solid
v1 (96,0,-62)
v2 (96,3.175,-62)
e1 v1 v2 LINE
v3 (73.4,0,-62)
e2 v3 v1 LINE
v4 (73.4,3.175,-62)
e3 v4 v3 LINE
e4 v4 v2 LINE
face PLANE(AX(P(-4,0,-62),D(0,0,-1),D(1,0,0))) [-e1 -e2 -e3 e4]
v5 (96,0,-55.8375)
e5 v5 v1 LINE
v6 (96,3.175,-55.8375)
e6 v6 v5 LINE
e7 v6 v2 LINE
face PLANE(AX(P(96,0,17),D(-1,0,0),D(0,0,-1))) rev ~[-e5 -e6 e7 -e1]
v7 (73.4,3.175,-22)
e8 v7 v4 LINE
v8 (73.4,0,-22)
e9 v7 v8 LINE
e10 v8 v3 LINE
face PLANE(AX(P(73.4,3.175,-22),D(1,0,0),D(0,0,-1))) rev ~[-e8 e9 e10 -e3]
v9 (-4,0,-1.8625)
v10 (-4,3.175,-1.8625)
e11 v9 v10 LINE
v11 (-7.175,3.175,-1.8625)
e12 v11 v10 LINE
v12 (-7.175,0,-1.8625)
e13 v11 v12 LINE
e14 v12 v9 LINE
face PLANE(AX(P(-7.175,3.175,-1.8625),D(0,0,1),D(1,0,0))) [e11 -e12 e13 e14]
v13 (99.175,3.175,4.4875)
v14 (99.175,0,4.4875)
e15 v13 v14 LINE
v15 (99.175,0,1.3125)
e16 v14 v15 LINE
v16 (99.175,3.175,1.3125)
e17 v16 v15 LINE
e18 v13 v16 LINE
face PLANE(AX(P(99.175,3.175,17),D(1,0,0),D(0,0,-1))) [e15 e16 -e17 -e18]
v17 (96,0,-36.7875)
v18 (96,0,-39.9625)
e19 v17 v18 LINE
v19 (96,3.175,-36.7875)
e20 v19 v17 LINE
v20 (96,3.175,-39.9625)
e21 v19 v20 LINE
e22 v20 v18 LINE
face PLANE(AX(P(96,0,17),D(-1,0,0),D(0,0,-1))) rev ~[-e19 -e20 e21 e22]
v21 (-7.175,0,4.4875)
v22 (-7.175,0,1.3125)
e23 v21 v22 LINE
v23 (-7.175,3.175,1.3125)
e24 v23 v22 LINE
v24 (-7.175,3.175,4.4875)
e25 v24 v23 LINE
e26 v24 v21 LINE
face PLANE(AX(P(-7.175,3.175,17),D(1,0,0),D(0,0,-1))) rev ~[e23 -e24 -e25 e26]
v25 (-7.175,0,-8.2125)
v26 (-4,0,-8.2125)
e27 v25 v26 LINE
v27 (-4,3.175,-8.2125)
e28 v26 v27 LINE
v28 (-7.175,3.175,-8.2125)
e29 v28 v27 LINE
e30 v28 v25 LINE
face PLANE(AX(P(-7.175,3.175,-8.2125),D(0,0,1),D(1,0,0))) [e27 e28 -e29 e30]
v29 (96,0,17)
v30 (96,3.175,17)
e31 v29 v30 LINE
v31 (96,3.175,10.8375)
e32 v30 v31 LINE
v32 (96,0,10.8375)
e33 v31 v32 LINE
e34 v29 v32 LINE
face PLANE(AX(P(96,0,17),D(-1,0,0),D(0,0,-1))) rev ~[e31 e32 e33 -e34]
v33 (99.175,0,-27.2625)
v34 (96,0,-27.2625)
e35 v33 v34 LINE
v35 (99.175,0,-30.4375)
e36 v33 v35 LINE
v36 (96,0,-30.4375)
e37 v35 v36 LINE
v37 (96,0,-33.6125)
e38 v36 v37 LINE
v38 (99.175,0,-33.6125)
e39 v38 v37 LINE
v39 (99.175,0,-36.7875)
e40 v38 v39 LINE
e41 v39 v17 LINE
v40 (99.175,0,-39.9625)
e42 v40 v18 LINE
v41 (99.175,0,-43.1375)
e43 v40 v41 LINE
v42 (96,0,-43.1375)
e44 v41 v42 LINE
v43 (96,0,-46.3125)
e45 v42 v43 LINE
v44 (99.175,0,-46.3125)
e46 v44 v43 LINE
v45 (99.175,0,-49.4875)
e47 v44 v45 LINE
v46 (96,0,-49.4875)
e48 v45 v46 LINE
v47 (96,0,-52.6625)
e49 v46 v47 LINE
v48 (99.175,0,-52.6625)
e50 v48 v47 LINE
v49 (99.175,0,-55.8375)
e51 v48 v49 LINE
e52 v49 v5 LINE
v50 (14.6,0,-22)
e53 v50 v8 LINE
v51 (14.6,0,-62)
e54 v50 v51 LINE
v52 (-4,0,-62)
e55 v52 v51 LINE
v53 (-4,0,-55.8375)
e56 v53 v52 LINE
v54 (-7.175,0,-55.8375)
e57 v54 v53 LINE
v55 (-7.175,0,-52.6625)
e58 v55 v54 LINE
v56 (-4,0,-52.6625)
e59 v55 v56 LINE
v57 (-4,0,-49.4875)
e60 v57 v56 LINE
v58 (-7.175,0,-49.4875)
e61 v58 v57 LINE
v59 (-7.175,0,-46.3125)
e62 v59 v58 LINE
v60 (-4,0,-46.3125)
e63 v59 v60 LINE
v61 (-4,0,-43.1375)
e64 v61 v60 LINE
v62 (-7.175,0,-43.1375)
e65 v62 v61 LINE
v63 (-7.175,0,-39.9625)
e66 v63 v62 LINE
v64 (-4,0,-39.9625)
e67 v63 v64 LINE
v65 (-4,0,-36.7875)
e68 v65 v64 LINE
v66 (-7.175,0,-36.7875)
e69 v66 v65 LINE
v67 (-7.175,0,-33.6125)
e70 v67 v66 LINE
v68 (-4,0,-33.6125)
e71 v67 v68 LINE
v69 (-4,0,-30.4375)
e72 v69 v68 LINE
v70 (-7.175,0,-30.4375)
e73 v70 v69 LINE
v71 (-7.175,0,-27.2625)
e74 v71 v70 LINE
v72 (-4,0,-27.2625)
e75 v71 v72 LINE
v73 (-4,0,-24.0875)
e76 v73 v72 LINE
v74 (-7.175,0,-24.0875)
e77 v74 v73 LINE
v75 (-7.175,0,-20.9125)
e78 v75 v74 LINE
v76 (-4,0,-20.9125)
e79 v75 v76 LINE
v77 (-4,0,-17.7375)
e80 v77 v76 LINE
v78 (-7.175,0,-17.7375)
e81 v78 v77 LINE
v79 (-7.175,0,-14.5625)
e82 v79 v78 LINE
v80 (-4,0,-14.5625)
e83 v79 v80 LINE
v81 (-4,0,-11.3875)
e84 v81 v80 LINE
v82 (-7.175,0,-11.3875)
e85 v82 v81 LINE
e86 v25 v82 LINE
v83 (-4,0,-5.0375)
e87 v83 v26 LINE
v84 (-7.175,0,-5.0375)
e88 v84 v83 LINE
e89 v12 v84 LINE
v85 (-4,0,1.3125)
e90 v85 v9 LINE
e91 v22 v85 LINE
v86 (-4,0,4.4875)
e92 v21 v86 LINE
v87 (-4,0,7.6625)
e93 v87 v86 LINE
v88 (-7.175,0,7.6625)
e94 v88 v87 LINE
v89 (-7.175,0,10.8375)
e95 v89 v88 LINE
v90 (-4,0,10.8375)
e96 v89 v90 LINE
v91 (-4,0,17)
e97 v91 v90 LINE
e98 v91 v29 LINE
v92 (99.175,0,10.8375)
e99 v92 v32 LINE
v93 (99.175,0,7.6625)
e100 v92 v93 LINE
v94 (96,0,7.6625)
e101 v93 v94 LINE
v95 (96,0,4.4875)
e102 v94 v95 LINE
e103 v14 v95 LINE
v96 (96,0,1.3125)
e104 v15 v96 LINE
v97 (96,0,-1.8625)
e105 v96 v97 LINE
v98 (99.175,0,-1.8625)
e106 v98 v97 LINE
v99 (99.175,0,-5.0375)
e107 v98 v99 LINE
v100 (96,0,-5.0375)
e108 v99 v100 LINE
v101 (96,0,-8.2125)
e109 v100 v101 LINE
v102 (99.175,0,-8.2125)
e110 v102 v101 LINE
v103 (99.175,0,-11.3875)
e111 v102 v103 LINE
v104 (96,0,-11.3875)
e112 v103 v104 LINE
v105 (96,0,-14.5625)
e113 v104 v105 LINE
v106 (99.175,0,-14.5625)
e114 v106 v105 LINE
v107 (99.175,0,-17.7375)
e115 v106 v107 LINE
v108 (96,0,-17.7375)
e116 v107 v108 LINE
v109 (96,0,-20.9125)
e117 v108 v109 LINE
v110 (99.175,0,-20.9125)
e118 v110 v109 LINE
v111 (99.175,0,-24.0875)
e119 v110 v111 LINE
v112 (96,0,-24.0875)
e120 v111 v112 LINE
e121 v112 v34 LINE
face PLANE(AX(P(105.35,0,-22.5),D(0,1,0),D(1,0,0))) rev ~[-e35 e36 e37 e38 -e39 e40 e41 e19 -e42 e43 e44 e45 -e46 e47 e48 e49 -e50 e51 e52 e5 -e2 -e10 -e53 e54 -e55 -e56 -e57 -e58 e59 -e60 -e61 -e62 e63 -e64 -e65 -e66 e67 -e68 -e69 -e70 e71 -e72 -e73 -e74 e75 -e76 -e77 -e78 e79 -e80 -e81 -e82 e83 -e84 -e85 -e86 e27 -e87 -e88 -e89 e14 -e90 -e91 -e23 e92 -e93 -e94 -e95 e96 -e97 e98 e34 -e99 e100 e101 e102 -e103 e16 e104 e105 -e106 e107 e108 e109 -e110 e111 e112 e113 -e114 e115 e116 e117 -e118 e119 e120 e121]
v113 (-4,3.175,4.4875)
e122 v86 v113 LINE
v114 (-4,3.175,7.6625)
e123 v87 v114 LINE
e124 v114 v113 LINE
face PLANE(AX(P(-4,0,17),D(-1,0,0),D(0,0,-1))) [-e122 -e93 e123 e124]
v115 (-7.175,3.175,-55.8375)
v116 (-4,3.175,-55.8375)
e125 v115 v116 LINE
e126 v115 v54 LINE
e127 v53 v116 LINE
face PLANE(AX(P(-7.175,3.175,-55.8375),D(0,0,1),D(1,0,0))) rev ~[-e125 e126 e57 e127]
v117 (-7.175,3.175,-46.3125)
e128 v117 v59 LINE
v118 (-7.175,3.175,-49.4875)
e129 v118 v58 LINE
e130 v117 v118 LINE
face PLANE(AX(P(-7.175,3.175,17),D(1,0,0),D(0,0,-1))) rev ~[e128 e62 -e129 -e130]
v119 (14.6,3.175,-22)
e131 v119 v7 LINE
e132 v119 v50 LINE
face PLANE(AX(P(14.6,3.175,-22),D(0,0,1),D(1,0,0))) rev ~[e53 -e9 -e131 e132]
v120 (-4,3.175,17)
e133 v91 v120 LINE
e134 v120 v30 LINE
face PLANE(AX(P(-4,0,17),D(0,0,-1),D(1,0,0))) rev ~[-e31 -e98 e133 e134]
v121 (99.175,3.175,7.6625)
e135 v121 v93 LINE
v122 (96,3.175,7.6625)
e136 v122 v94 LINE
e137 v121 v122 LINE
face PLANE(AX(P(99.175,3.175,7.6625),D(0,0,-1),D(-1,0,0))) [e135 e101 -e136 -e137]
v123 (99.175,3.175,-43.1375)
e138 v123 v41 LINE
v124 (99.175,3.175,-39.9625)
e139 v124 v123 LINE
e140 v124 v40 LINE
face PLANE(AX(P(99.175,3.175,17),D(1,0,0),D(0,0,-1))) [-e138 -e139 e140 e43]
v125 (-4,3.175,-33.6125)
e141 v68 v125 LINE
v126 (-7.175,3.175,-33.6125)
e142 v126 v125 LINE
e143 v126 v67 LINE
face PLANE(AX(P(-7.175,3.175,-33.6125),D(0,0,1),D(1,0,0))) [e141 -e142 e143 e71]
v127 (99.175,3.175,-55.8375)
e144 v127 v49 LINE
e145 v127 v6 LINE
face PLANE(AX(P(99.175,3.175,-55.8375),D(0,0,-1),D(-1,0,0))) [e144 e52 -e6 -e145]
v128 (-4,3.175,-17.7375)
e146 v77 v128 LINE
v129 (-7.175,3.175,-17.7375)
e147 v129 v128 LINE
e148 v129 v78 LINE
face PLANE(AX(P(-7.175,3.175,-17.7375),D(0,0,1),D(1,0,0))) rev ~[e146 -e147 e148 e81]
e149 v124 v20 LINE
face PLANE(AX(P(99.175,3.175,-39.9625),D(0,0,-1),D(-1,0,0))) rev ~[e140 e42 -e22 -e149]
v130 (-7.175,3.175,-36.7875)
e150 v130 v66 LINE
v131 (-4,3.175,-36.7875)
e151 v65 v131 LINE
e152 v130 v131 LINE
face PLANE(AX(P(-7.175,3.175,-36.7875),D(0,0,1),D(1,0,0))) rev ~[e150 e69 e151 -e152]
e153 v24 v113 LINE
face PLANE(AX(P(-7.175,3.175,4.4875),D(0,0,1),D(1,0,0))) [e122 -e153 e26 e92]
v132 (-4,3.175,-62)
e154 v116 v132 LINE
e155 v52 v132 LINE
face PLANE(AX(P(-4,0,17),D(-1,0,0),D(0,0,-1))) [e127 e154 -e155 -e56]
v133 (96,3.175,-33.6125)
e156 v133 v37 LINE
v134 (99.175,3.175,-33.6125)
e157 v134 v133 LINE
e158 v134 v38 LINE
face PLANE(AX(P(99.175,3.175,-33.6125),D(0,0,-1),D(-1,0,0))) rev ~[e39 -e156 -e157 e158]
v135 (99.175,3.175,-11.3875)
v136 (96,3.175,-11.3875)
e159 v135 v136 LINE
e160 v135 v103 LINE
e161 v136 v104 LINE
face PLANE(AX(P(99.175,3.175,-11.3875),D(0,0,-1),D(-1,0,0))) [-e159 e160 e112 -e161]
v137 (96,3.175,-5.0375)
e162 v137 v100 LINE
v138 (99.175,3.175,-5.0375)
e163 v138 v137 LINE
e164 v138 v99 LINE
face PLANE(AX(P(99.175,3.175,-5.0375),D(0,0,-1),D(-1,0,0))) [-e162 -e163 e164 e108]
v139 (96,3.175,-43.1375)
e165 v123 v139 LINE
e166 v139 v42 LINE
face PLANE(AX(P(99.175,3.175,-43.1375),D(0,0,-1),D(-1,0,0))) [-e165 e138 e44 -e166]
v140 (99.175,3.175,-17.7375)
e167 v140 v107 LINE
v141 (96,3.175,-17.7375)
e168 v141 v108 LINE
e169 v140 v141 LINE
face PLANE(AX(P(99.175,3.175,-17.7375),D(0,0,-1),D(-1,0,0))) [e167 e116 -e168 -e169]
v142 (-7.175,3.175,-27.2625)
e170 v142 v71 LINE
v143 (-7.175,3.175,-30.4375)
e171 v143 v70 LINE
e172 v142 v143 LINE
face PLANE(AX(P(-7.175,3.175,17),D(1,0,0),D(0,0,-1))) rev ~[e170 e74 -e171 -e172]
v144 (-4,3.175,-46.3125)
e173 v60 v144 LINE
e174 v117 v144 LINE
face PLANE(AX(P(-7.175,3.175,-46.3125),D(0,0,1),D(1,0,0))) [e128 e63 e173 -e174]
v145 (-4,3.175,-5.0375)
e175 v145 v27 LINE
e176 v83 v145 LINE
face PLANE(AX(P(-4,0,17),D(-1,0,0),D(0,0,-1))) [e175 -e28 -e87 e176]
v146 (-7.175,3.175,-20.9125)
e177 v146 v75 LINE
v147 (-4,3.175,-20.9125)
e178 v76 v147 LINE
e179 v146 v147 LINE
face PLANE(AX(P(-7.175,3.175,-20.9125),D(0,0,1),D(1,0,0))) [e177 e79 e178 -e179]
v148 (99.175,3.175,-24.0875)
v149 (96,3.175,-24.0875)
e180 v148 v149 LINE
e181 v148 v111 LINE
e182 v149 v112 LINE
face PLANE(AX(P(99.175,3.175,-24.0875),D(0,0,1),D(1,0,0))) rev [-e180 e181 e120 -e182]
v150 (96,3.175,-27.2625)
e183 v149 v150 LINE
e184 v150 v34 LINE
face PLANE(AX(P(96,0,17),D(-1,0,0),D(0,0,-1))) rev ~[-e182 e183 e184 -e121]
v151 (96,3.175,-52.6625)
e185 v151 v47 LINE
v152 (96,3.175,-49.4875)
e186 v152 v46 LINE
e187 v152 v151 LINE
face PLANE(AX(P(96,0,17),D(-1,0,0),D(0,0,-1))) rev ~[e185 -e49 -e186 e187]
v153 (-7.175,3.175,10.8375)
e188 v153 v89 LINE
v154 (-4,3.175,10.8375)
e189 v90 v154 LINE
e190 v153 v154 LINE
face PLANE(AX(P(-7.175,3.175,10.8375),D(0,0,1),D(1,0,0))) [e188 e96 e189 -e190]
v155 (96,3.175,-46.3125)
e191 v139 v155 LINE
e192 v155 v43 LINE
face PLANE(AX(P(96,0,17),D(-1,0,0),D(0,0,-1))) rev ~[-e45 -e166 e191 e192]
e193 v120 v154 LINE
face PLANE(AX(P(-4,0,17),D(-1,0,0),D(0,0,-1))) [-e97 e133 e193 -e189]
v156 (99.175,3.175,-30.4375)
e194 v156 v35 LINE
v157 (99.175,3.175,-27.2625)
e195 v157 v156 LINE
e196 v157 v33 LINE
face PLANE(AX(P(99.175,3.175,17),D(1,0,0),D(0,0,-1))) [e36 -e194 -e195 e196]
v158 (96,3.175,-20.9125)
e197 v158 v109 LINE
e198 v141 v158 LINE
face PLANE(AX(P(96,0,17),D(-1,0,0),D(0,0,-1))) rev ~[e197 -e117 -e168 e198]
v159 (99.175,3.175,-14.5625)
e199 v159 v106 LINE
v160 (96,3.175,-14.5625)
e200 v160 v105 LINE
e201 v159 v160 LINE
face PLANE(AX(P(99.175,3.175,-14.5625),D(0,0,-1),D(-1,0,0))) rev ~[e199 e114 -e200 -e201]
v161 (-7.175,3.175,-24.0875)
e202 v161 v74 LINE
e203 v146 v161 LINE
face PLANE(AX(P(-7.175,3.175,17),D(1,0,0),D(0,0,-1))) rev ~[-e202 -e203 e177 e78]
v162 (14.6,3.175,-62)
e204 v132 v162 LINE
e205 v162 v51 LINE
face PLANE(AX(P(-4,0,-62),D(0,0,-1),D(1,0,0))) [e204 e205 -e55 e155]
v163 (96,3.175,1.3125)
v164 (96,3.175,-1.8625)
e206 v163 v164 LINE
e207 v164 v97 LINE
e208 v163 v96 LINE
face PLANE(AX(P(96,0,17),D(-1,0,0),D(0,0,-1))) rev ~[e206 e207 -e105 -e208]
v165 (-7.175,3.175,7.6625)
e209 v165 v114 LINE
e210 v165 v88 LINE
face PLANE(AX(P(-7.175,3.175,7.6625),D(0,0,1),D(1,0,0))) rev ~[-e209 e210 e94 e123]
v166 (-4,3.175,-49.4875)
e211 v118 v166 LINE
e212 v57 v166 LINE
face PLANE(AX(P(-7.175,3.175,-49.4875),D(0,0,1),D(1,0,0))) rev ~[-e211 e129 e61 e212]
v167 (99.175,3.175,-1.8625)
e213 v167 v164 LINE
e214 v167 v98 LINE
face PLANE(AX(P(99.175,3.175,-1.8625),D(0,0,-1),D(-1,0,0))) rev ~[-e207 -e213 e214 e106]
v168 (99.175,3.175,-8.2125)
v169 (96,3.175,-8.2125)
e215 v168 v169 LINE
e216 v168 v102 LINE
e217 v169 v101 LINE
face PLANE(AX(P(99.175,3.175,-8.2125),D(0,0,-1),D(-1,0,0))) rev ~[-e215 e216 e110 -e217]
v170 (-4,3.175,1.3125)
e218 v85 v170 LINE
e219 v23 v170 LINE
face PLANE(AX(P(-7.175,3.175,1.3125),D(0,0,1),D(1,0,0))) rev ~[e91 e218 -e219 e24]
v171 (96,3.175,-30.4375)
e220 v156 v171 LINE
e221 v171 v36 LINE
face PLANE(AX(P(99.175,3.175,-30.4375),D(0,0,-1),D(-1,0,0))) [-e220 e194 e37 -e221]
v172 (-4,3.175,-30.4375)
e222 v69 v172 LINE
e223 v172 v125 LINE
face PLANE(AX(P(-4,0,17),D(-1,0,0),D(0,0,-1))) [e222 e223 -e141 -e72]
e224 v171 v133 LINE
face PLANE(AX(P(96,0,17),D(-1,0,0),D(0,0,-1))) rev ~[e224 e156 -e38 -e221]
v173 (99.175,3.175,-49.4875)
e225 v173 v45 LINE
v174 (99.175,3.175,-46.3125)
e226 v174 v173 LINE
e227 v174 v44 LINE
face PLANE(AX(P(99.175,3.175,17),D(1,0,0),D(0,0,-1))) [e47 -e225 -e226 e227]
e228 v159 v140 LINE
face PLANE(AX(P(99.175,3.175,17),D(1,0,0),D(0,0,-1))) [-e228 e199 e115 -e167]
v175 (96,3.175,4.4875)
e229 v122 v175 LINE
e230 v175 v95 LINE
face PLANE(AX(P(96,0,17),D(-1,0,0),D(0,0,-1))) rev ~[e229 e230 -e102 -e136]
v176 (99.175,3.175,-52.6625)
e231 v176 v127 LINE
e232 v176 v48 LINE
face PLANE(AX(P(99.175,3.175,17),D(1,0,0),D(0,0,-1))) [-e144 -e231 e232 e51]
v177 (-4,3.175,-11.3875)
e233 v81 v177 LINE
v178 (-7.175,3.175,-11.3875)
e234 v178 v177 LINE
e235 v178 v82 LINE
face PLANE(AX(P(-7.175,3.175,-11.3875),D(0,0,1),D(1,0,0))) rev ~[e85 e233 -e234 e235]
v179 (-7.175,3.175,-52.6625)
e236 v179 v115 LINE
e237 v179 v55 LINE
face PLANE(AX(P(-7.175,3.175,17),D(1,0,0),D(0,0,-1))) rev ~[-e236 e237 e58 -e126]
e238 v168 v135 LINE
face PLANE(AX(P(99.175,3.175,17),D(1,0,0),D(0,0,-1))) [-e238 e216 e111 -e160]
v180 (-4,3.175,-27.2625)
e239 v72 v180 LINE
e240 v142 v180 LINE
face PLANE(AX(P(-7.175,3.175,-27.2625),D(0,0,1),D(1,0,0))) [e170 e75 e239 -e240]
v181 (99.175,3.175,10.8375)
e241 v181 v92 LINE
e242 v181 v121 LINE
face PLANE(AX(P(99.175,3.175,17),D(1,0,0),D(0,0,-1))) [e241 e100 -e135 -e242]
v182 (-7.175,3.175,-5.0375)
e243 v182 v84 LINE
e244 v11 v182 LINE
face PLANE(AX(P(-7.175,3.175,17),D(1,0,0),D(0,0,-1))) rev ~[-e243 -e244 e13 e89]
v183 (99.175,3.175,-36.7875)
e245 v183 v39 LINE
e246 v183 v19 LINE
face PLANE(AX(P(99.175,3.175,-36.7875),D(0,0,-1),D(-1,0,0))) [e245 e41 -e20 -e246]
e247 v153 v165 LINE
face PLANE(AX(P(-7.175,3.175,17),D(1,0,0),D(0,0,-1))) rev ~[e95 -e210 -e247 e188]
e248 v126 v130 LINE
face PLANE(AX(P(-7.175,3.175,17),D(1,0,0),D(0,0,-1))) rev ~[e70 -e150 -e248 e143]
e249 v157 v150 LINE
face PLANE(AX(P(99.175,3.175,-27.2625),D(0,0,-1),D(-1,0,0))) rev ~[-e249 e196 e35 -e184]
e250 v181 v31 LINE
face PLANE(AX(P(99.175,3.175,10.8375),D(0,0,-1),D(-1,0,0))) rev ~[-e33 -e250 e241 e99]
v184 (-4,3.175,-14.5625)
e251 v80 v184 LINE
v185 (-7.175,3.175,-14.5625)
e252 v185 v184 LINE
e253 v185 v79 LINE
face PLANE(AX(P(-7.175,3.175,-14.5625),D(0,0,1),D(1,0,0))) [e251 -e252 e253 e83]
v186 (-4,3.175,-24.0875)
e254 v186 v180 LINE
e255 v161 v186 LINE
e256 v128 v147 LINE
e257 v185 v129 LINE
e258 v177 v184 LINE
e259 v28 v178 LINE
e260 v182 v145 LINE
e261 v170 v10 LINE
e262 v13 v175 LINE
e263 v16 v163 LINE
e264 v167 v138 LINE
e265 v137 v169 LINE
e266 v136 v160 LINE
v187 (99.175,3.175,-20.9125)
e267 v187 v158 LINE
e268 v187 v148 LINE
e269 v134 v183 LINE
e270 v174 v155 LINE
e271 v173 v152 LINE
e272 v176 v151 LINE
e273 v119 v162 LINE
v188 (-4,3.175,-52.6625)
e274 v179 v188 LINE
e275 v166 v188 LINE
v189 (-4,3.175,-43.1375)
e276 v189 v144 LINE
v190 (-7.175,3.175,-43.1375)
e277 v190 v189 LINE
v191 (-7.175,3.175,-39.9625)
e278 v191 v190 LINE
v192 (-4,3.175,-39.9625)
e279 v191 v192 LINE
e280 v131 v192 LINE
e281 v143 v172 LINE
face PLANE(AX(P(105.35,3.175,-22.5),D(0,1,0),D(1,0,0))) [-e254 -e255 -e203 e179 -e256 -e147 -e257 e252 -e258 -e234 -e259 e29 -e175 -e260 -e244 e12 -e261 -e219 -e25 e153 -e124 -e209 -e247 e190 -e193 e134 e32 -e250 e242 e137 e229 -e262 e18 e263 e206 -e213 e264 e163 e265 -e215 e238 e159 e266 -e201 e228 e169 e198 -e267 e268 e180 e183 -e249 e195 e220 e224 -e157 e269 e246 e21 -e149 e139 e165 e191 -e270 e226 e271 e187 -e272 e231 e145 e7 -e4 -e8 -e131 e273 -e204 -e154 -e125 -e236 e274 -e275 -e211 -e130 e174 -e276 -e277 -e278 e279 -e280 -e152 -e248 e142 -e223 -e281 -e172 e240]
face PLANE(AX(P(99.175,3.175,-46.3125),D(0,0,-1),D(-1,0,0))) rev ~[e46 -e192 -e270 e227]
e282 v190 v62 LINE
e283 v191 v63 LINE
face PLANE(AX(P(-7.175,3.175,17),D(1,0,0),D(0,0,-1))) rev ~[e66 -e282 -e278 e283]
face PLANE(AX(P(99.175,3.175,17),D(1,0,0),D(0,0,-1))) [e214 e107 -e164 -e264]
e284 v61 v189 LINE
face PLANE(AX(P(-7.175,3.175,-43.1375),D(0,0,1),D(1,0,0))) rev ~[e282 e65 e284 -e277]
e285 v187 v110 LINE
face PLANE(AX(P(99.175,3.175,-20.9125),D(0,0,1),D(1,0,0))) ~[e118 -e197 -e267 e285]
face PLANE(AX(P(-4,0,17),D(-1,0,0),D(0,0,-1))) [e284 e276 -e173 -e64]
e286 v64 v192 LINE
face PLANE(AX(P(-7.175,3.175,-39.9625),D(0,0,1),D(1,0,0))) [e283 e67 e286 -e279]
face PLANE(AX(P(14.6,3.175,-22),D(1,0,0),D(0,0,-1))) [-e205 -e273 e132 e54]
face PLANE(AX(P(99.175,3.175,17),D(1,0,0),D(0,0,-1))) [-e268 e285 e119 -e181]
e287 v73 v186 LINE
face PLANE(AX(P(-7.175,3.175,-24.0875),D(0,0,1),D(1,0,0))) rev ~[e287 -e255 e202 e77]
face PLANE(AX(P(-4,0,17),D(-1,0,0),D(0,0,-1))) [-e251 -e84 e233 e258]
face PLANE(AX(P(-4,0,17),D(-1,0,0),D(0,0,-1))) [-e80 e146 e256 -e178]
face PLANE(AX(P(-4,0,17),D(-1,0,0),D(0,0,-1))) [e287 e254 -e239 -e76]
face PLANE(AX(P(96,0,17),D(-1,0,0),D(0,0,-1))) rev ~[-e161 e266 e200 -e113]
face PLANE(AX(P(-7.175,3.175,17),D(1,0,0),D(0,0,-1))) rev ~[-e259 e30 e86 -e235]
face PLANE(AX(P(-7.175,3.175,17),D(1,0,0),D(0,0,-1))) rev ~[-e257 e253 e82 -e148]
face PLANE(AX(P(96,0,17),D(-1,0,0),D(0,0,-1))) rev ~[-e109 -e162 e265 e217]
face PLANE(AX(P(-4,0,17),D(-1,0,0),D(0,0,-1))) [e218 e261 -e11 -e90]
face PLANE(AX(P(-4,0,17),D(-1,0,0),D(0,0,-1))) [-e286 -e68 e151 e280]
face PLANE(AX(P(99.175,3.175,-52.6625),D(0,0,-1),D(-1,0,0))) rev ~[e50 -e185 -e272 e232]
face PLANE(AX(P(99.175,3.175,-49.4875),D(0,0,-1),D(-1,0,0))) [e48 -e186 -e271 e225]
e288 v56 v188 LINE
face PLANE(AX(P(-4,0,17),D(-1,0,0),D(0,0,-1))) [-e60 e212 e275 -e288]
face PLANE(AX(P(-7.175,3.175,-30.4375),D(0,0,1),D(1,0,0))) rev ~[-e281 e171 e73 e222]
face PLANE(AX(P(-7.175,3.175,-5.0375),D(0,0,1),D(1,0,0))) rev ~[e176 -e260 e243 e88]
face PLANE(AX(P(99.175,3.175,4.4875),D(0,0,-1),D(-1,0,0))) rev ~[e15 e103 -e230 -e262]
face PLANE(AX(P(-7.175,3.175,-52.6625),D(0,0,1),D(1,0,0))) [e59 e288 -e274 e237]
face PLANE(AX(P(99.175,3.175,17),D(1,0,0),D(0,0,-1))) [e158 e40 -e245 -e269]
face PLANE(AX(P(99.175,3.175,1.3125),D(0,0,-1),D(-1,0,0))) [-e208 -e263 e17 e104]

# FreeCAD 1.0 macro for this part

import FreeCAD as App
import Part
import Sketcher

doc = App.newDocument("Part")
body = doc.addObject("PartDesign::Body", "Body")

sketch1 = body.newObject("Sketcher::SketchObject", "Sketch")
sketch1.AttachmentSupport = (doc.getObject("XZ_Plane"), [""])
sketch1.MapMode = "FlatFace"
sketch1.addGeometry(Part.LineSegment(App.Vector(-4, -62, 0), App.Vector(-4, 17, 0)), False)
sketch1.addGeometry(Part.LineSegment(App.Vector(-4, 17, 0), App.Vector(96, 17, 0)), False)
sketch1.addGeometry(Part.LineSegment(App.Vector(96, 17, 0), App.Vector(96, -62, 0)), False)
sketch1.addGeometry(Part.LineSegment(App.Vector(96, -62, 0), App.Vector(-4, -62, 0)), False)
sketch1.addConstraint(Sketcher.Constraint("Coincident", 0, 2, 1, 1))
sketch1.addConstraint(Sketcher.Constraint("Coincident", 1, 2, 2, 1))
sketch1.addConstraint(Sketcher.Constraint("Coincident", 2, 2, 3, 1))
sketch1.addConstraint(Sketcher.Constraint("Coincident", 3, 2, 0, 1))
sketch1.addConstraint(Sketcher.Constraint("Vertical", 0))
sketch1.addConstraint(Sketcher.Constraint("Horizontal", 1))
sketch1.addConstraint(Sketcher.Constraint("Vertical", 2))
sketch1.addConstraint(Sketcher.Constraint("Horizontal", 3))
sketch1.addConstraint(Sketcher.Constraint("DistanceX", 1, 1, 1, 2, 100.0))
sketch1.addConstraint(Sketcher.Constraint("DistanceY", 0, 1, 0, 2, 79.0))
sketch1.addConstraint(Sketcher.Constraint("DistanceX", 0, 2, -1, 1, 4.0))
sketch1.addConstraint(Sketcher.Constraint("DistanceY", -1, 1, 0, 2, 17.0))
pad1 = body.newObject("PartDesign::Pad", "Pad")
pad1.Profile = sketch1
pad1.Length = 3.175
pad1.Reversed = True

sketch2 = body.newObject("Sketcher::SketchObject", "Sketch001")
sketch2.AttachmentSupport = (doc.getObject("XZ_Plane"), [""])
sketch2.MapMode = "FlatFace"
sketch2.AttachmentOffset = App.Placement(App.Vector(0, 0, -3.175), App.Rotation())
sketch2.addGeometry(Part.LineSegment(App.Vector(15, -62, 0), App.Vector(15, -22, 0)), False)
sketch2.addGeometry(Part.LineSegment(App.Vector(15, -22, 0), App.Vector(73, -22, 0)), False)
sketch2.addGeometry(Part.LineSegment(App.Vector(73, -22, 0), App.Vector(73, -62, 0)), False)
sketch2.addGeometry(Part.LineSegment(App.Vector(73, -62, 0), App.Vector(15, -62, 0)), False)
sketch2.addConstraint(Sketcher.Constraint("Coincident", 0, 2, 1, 1))
sketch2.addConstraint(Sketcher.Constraint("Coincident", 1, 2, 2, 1))
sketch2.addConstraint(Sketcher.Constraint("Coincident", 2, 2, 3, 1))
sketch2.addConstraint(Sketcher.Constraint("Coincident", 3, 2, 0, 1))
sketch2.addConstraint(Sketcher.Constraint("Vertical", 0))
sketch2.addConstraint(Sketcher.Constraint("Horizontal", 1))
sketch2.addConstraint(Sketcher.Constraint("Vertical", 2))
sketch2.addConstraint(Sketcher.Constraint("Horizontal", 3))
sketch2.addConstraint(Sketcher.Constraint("DistanceY", 0, 1, 0, 2, 40.0))
sketch2.addConstraint(Sketcher.Constraint("DistanceX", 1, 1, 1, 2, 58.8))
sketch2.addConstraint(Sketcher.Constraint("DistanceY", 0, 2, -1, 1, 22.0))
sketch2.addConstraint(Sketcher.Constraint("DistanceX", -1, 1, 0, 2, 14.6))
pocket1 = body.newObject("PartDesign::Pocket", "Pocket")
pocket1.Profile = sketch2
pocket1.Length = 3.175
pocket1.Reversed = True

sketch3 = body.newObject("Sketcher::SketchObject", "Sketch002")
sketch3.AttachmentSupport = (doc.getObject("XZ_Plane"), [""])
sketch3.MapMode = "FlatFace"
sketch3.AttachmentOffset = App.Placement(App.Vector(0, 0, -3.175), App.Rotation())
sketch3.addGeometry(Part.LineSegment(App.Vector(-7.2, -24.1, 0), App.Vector(-7.2, -20.9, 0)), False)
sketch3.addGeometry(Part.LineSegment(App.Vector(-7.2, -20.9, 0), App.Vector(-0.8, -20.9, 0)), False)
sketch3.addGeometry(Part.LineSegment(App.Vector(-0.8, -20.9, 0), App.Vector(-0.8, -24.1, 0)), False)
sketch3.addGeometry(Part.LineSegment(App.Vector(-0.8, -24.1, 0), App.Vector(-7.2, -24.1, 0)), False)
sketch3.addConstraint(Sketcher.Constraint("Coincident", 0, 2, 1, 1))
sketch3.addConstraint(Sketcher.Constraint("Coincident", 1, 2, 2, 1))
sketch3.addConstraint(Sketcher.Constraint("Coincident", 2, 2, 3, 1))
sketch3.addConstraint(Sketcher.Constraint("Coincident", 3, 2, 0, 1))
sketch3.addConstraint(Sketcher.Constraint("Vertical", 0))
sketch3.addConstraint(Sketcher.Constraint("Horizontal", 1))
sketch3.addConstraint(Sketcher.Constraint("Vertical", 2))
sketch3.addConstraint(Sketcher.Constraint("Horizontal", 3))
sketch3.addConstraint(Sketcher.Constraint("DistanceX", 1, 1, 1, 2, 6.35))
sketch3.addConstraint(Sketcher.Constraint("DistanceY", 0, 1, 0, 2, 3.175))
sketch3.addConstraint(Sketcher.Constraint("DistanceX", 0, 2, -1, 1, 7.175))
sketch3.addConstraint(Sketcher.Constraint("DistanceY", 0, 2, -1, 1, 20.9125))
pad2 = body.newObject("PartDesign::Pad", "Pad001")
pad2.Profile = sketch3
pad2.Length = 3.175
doc.recompute()

datumplane = body.newObject("PartDesign::Plane", "DatumPlane")
datumplane.AttachmentSupport = (doc.getObject("YZ_Plane"), [""])
datumplane.MapMode = "FlatFace"
datumplane.AttachmentOffset = App.Placement(App.Vector(0, 0, 46), App.Rotation())
mirrored = body.newObject("PartDesign::Mirrored", "Mirrored")
mirrored.Originals = [pad2]
mirrored.MirrorPlane = (datumplane, [""])
body.Tip = mirrored
doc.recompute()

linearpattern = body.newObject("PartDesign::LinearPattern", "LinearPattern")
linearpattern.Originals = [pad2]
linearpattern.Direction = (doc.getObject("Z_Axis"), [""])
linearpattern.Mode = "offset"
linearpattern.Offset = 6.35
linearpattern.Occurrences = 6
linearpattern.Reversed = True
body.Tip = linearpattern

sketch4 = body.newObject("Sketcher::SketchObject", "Sketch003")
sketch4.AttachmentSupport = (doc.getObject("XZ_Plane"), [""])
sketch4.MapMode = "FlatFace"
sketch4.AttachmentOffset = App.Placement(App.Vector(0, 0, -3.175), App.Rotation())
sketch4.addGeometry(Part.LineSegment(App.Vector(99.2, -27.3, 0), App.Vector(99.2, -30.4, 0)), False)
sketch4.addGeometry(Part.LineSegment(App.Vector(99.2, -30.4, 0), App.Vector(92.8, -30.4, 0)), False)
sketch4.addGeometry(Part.LineSegment(App.Vector(92.8, -30.4, 0), App.Vector(92.8, -27.3, 0)), False)
sketch4.addGeometry(Part.LineSegment(App.Vector(92.8, -27.3, 0), App.Vector(99.2, -27.3, 0)), False)
sketch4.addConstraint(Sketcher.Constraint("Coincident", 0, 2, 1, 1))
sketch4.addConstraint(Sketcher.Constraint("Coincident", 1, 2, 2, 1))
sketch4.addConstraint(Sketcher.Constraint("Coincident", 2, 2, 3, 1))
sketch4.addConstraint(Sketcher.Constraint("Coincident", 3, 2, 0, 1))
sketch4.addConstraint(Sketcher.Constraint("Vertical", 0))
sketch4.addConstraint(Sketcher.Constraint("Horizontal", 1))
sketch4.addConstraint(Sketcher.Constraint("Vertical", 2))
sketch4.addConstraint(Sketcher.Constraint("Horizontal", 3))
sketch4.addConstraint(Sketcher.Constraint("DistanceX", 1, 2, 1, 1, 6.35))
sketch4.addConstraint(Sketcher.Constraint("DistanceY", 0, 2, 0, 1, 3.175))
sketch4.addConstraint(Sketcher.Constraint("DistanceX", -1, 1, 0, 2, 99.175))
sketch4.addConstraint(Sketcher.Constraint("DistanceY", 0, 2, -1, 1, 30.4375))
pad3 = body.newObject("PartDesign::Pad", "Pad002")
pad3.Profile = sketch4
pad3.Length = 3.175

sketch5 = body.newObject("Sketcher::SketchObject", "Sketch004")
sketch5.AttachmentSupport = (doc.getObject("XZ_Plane"), [""])
sketch5.MapMode = "FlatFace"
sketch5.AttachmentOffset = App.Placement(App.Vector(0, 0, -3.175), App.Rotation())
sketch5.addGeometry(Part.LineSegment(App.Vector(99.2, -33.6, 0), App.Vector(99.2, -36.8, 0)), False)
sketch5.addGeometry(Part.LineSegment(App.Vector(99.2, -36.8, 0), App.Vector(92.8, -36.8, 0)), False)
sketch5.addGeometry(Part.LineSegment(App.Vector(92.8, -36.8, 0), App.Vector(92.8, -33.6, 0)), False)
sketch5.addGeometry(Part.LineSegment(App.Vector(92.8, -33.6, 0), App.Vector(99.2, -33.6, 0)), False)
sketch5.addConstraint(Sketcher.Constraint("Coincident", 0, 2, 1, 1))
sketch5.addConstraint(Sketcher.Constraint("Coincident", 1, 2, 2, 1))
sketch5.addConstraint(Sketcher.Constraint("Coincident", 2, 2, 3, 1))
sketch5.addConstraint(Sketcher.Constraint("Coincident", 3, 2, 0, 1))
sketch5.addConstraint(Sketcher.Constraint("Vertical", 0))
sketch5.addConstraint(Sketcher.Constraint("Horizontal", 1))
sketch5.addConstraint(Sketcher.Constraint("Vertical", 2))
sketch5.addConstraint(Sketcher.Constraint("Horizontal", 3))
sketch5.addConstraint(Sketcher.Constraint("DistanceX", 1, 2, 1, 1, 6.35))
sketch5.addConstraint(Sketcher.Constraint("DistanceY", 0, 2, 0, 1, 3.175))
sketch5.addConstraint(Sketcher.Constraint("DistanceX", -1, 1, 0, 2, 99.175))
sketch5.addConstraint(Sketcher.Constraint("DistanceY", 0, 2, -1, 1, 36.7875))
pad4 = body.newObject("PartDesign::Pad", "Pad003")
pad4.Profile = sketch5
pad4.Length = 3.175

sketch6 = body.newObject("Sketcher::SketchObject", "Sketch005")
sketch6.AttachmentSupport = (doc.getObject("XZ_Plane"), [""])
sketch6.MapMode = "FlatFace"
sketch6.AttachmentOffset = App.Placement(App.Vector(0, 0, -3.175), App.Rotation())
sketch6.addGeometry(Part.LineSegment(App.Vector(99.2, -40, 0), App.Vector(99.2, -43.1, 0)), False)
sketch6.addGeometry(Part.LineSegment(App.Vector(99.2, -43.1, 0), App.Vector(92.8, -43.1, 0)), False)
sketch6.addGeometry(Part.LineSegment(App.Vector(92.8, -43.1, 0), App.Vector(92.8, -40, 0)), False)
sketch6.addGeometry(Part.LineSegment(App.Vector(92.8, -40, 0), App.Vector(99.2, -40, 0)), False)
sketch6.addConstraint(Sketcher.Constraint("Coincident", 0, 2, 1, 1))
sketch6.addConstraint(Sketcher.Constraint("Coincident", 1, 2, 2, 1))
sketch6.addConstraint(Sketcher.Constraint("Coincident", 2, 2, 3, 1))
sketch6.addConstraint(Sketcher.Constraint("Coincident", 3, 2, 0, 1))
sketch6.addConstraint(Sketcher.Constraint("Vertical", 0))
sketch6.addConstraint(Sketcher.Constraint("Horizontal", 1))
sketch6.addConstraint(Sketcher.Constraint("Vertical", 2))
sketch6.addConstraint(Sketcher.Constraint("Horizontal", 3))
sketch6.addConstraint(Sketcher.Constraint("DistanceX", 1, 2, 1, 1, 6.35))
sketch6.addConstraint(Sketcher.Constraint("DistanceY", 0, 2, 0, 1, 3.175))
sketch6.addConstraint(Sketcher.Constraint("DistanceX", -1, 1, 0, 2, 99.175))
sketch6.addConstraint(Sketcher.Constraint("DistanceY", 0, 2, -1, 1, 43.1375))
pad5 = body.newObject("PartDesign::Pad", "Pad004")
pad5.Profile = sketch6
pad5.Length = 3.175

sketch7 = body.newObject("Sketcher::SketchObject", "Sketch006")
sketch7.AttachmentSupport = (doc.getObject("XZ_Plane"), [""])
sketch7.MapMode = "FlatFace"
sketch7.AttachmentOffset = App.Placement(App.Vector(0, 0, -3.175), App.Rotation())
sketch7.addGeometry(Part.LineSegment(App.Vector(99.2, -46.3, 0), App.Vector(99.2, -49.5, 0)), False)
sketch7.addGeometry(Part.LineSegment(App.Vector(99.2, -49.5, 0), App.Vector(92.8, -49.5, 0)), False)
sketch7.addGeometry(Part.LineSegment(App.Vector(92.8, -49.5, 0), App.Vector(92.8, -46.3, 0)), False)
sketch7.addGeometry(Part.LineSegment(App.Vector(92.8, -46.3, 0), App.Vector(99.2, -46.3, 0)), False)
sketch7.addConstraint(Sketcher.Constraint("Coincident", 0, 2, 1, 1))
sketch7.addConstraint(Sketcher.Constraint("Coincident", 1, 2, 2, 1))
sketch7.addConstraint(Sketcher.Constraint("Coincident", 2, 2, 3, 1))
sketch7.addConstraint(Sketcher.Constraint("Coincident", 3, 2, 0, 1))
sketch7.addConstraint(Sketcher.Constraint("Vertical", 0))
sketch7.addConstraint(Sketcher.Constraint("Horizontal", 1))
sketch7.addConstraint(Sketcher.Constraint("Vertical", 2))
sketch7.addConstraint(Sketcher.Constraint("Horizontal", 3))
sketch7.addConstraint(Sketcher.Constraint("DistanceX", 1, 2, 1, 1, 6.35))
sketch7.addConstraint(Sketcher.Constraint("DistanceY", 0, 2, 0, 1, 3.175))
sketch7.addConstraint(Sketcher.Constraint("DistanceX", -1, 1, 0, 2, 99.175))
sketch7.addConstraint(Sketcher.Constraint("DistanceY", 0, 2, -1, 1, 49.4875))
pad6 = body.newObject("PartDesign::Pad", "Pad005")
pad6.Profile = sketch7
pad6.Length = 3.175

sketch8 = body.newObject("Sketcher::SketchObject", "Sketch007")
sketch8.AttachmentSupport = (doc.getObject("XZ_Plane"), [""])
sketch8.MapMode = "FlatFace"
sketch8.AttachmentOffset = App.Placement(App.Vector(0, 0, -3.175), App.Rotation())
sketch8.addGeometry(Part.LineSegment(App.Vector(99.2, -52.7, 0), App.Vector(99.2, -55.8, 0)), False)
sketch8.addGeometry(Part.LineSegment(App.Vector(99.2, -55.8, 0), App.Vector(92.8, -55.8, 0)), False)
sketch8.addGeometry(Part.LineSegment(App.Vector(92.8, -55.8, 0), App.Vector(92.8, -52.7, 0)), False)
sketch8.addGeometry(Part.LineSegment(App.Vector(92.8, -52.7, 0), App.Vector(99.2, -52.7, 0)), False)
sketch8.addConstraint(Sketcher.Constraint("Coincident", 0, 2, 1, 1))
sketch8.addConstraint(Sketcher.Constraint("Coincident", 1, 2, 2, 1))
sketch8.addConstraint(Sketcher.Constraint("Coincident", 2, 2, 3, 1))
sketch8.addConstraint(Sketcher.Constraint("Coincident", 3, 2, 0, 1))
sketch8.addConstraint(Sketcher.Constraint("Vertical", 0))
sketch8.addConstraint(Sketcher.Constraint("Horizontal", 1))
sketch8.addConstraint(Sketcher.Constraint("Vertical", 2))
sketch8.addConstraint(Sketcher.Constraint("Horizontal", 3))
sketch8.addConstraint(Sketcher.Constraint("DistanceX", 1, 2, 1, 1, 6.35))
sketch8.addConstraint(Sketcher.Constraint("DistanceY", 0, 2, 0, 1, 3.175))
sketch8.addConstraint(Sketcher.Constraint("DistanceX", -1, 1, 0, 2, 99.175))
sketch8.addConstraint(Sketcher.Constraint("DistanceY", 0, 2, -1, 1, 55.8375))
pad7 = body.newObject("PartDesign::Pad", "Pad006")
pad7.Profile = sketch8
pad7.Length = 3.175
doc.recompute()

linearpattern2 = body.newObject("PartDesign::LinearPattern", "LinearPattern001")
linearpattern2.Originals = [pad2]
linearpattern2.Direction = (doc.getObject("Z_Axis"), [""])
linearpattern2.Mode = "offset"
linearpattern2.Offset = 6.35
linearpattern2.Occurrences = 6
body.Tip = linearpattern2

sketch9 = body.newObject("Sketcher::SketchObject", "Sketch008")
sketch9.AttachmentSupport = (doc.getObject("XZ_Plane"), [""])
sketch9.MapMode = "FlatFace"
sketch9.AttachmentOffset = App.Placement(App.Vector(0, 0, -3.175), App.Rotation())
sketch9.addGeometry(Part.LineSegment(App.Vector(99.2, -14.6, 0), App.Vector(99.2, -17.7, 0)), False)
sketch9.addGeometry(Part.LineSegment(App.Vector(99.2, -17.7, 0), App.Vector(92.8, -17.7, 0)), False)
sketch9.addGeometry(Part.LineSegment(App.Vector(92.8, -17.7, 0), App.Vector(92.8, -14.6, 0)), False)
sketch9.addGeometry(Part.LineSegment(App.Vector(92.8, -14.6, 0), App.Vector(99.2, -14.6, 0)), False)
sketch9.addConstraint(Sketcher.Constraint("Coincident", 0, 2, 1, 1))
sketch9.addConstraint(Sketcher.Constraint("Coincident", 1, 2, 2, 1))
sketch9.addConstraint(Sketcher.Constraint("Coincident", 2, 2, 3, 1))
sketch9.addConstraint(Sketcher.Constraint("Coincident", 3, 2, 0, 1))
sketch9.addConstraint(Sketcher.Constraint("Vertical", 0))
sketch9.addConstraint(Sketcher.Constraint("Horizontal", 1))
sketch9.addConstraint(Sketcher.Constraint("Vertical", 2))
sketch9.addConstraint(Sketcher.Constraint("Horizontal", 3))
sketch9.addConstraint(Sketcher.Constraint("DistanceX", 1, 2, 1, 1, 6.35))
sketch9.addConstraint(Sketcher.Constraint("DistanceY", 0, 2, 0, 1, 3.175))
sketch9.addConstraint(Sketcher.Constraint("DistanceX", -1, 1, 0, 2, 99.175))
sketch9.addConstraint(Sketcher.Constraint("DistanceY", 0, 2, -1, 1, 17.7375))
pad8 = body.newObject("PartDesign::Pad", "Pad007")
pad8.Profile = sketch9
pad8.Length = 3.175

sketch10 = body.newObject("Sketcher::SketchObject", "Sketch009")
sketch10.AttachmentSupport = (doc.getObject("XZ_Plane"), [""])
sketch10.MapMode = "FlatFace"
sketch10.AttachmentOffset = App.Placement(App.Vector(0, 0, -3.175), App.Rotation())
sketch10.addGeometry(Part.LineSegment(App.Vector(99.2, -8.2, 0), App.Vector(99.2, -11.4, 0)), False)
sketch10.addGeometry(Part.LineSegment(App.Vector(99.2, -11.4, 0), App.Vector(92.8, -11.4, 0)), False)
sketch10.addGeometry(Part.LineSegment(App.Vector(92.8, -11.4, 0), App.Vector(92.8, -8.2, 0)), False)
sketch10.addGeometry(Part.LineSegment(App.Vector(92.8, -8.2, 0), App.Vector(99.2, -8.2, 0)), False)
sketch10.addConstraint(Sketcher.Constraint("Coincident", 0, 2, 1, 1))
sketch10.addConstraint(Sketcher.Constraint("Coincident", 1, 2, 2, 1))
sketch10.addConstraint(Sketcher.Constraint("Coincident", 2, 2, 3, 1))
sketch10.addConstraint(Sketcher.Constraint("Coincident", 3, 2, 0, 1))
sketch10.addConstraint(Sketcher.Constraint("Vertical", 0))
sketch10.addConstraint(Sketcher.Constraint("Horizontal", 1))
sketch10.addConstraint(Sketcher.Constraint("Vertical", 2))
sketch10.addConstraint(Sketcher.Constraint("Horizontal", 3))
sketch10.addConstraint(Sketcher.Constraint("DistanceX", 1, 2, 1, 1, 6.35))
sketch10.addConstraint(Sketcher.Constraint("DistanceY", 0, 2, 0, 1, 3.175))
sketch10.addConstraint(Sketcher.Constraint("DistanceX", -1, 1, 0, 2, 99.175))
sketch10.addConstraint(Sketcher.Constraint("DistanceY", 0, 2, -1, 1, 11.3875))
pad9 = body.newObject("PartDesign::Pad", "Pad008")
pad9.Profile = sketch10
pad9.Length = 3.175

sketch11 = body.newObject("Sketcher::SketchObject", "Sketch010")
sketch11.AttachmentSupport = (doc.getObject("XZ_Plane"), [""])
sketch11.MapMode = "FlatFace"
sketch11.AttachmentOffset = App.Placement(App.Vector(0, 0, -3.175), App.Rotation())
sketch11.addGeometry(Part.LineSegment(App.Vector(99.2, -1.9, 0), App.Vector(99.2, -5, 0)), False)
sketch11.addGeometry(Part.LineSegment(App.Vector(99.2, -5, 0), App.Vector(92.8, -5, 0)), False)
sketch11.addGeometry(Part.LineSegment(App.Vector(92.8, -5, 0), App.Vector(92.8, -1.9, 0)), False)
sketch11.addGeometry(Part.LineSegment(App.Vector(92.8, -1.9, 0), App.Vector(99.2, -1.9, 0)), False)
sketch11.addConstraint(Sketcher.Constraint("Coincident", 0, 2, 1, 1))
sketch11.addConstraint(Sketcher.Constraint("Coincident", 1, 2, 2, 1))
sketch11.addConstraint(Sketcher.Constraint("Coincident", 2, 2, 3, 1))
sketch11.addConstraint(Sketcher.Constraint("Coincident", 3, 2, 0, 1))
sketch11.addConstraint(Sketcher.Constraint("Vertical", 0))
sketch11.addConstraint(Sketcher.Constraint("Horizontal", 1))
sketch11.addConstraint(Sketcher.Constraint("Vertical", 2))
sketch11.addConstraint(Sketcher.Constraint("Horizontal", 3))
sketch11.addConstraint(Sketcher.Constraint("DistanceX", 1, 2, 1, 1, 6.35))
sketch11.addConstraint(Sketcher.Constraint("DistanceY", 0, 2, 0, 1, 3.175))
sketch11.addConstraint(Sketcher.Constraint("DistanceX", -1, 1, 0, 2, 99.175))
sketch11.addConstraint(Sketcher.Constraint("DistanceY", 0, 2, -1, 1, 5.0375))
pad10 = body.newObject("PartDesign::Pad", "Pad009")
pad10.Profile = sketch11
pad10.Length = 3.175

sketch12 = body.newObject("Sketcher::SketchObject", "Sketch011")
sketch12.AttachmentSupport = (doc.getObject("XZ_Plane"), [""])
sketch12.MapMode = "FlatFace"
sketch12.AttachmentOffset = App.Placement(App.Vector(0, 0, -3.175), App.Rotation())
sketch12.addGeometry(Part.LineSegment(App.Vector(99.2, 4.5, 0), App.Vector(99.2, 1.3, 0)), False)
sketch12.addGeometry(Part.LineSegment(App.Vector(99.2, 1.3, 0), App.Vector(92.8, 1.3, 0)), False)
sketch12.addGeometry(Part.LineSegment(App.Vector(92.8, 1.3, 0), App.Vector(92.8, 4.5, 0)), False)
sketch12.addGeometry(Part.LineSegment(App.Vector(92.8, 4.5, 0), App.Vector(99.2, 4.5, 0)), False)
sketch12.addConstraint(Sketcher.Constraint("Coincident", 0, 2, 1, 1))
sketch12.addConstraint(Sketcher.Constraint("Coincident", 1, 2, 2, 1))
sketch12.addConstraint(Sketcher.Constraint("Coincident", 2, 2, 3, 1))
sketch12.addConstraint(Sketcher.Constraint("Coincident", 3, 2, 0, 1))
sketch12.addConstraint(Sketcher.Constraint("Vertical", 0))
sketch12.addConstraint(Sketcher.Constraint("Horizontal", 1))
sketch12.addConstraint(Sketcher.Constraint("Vertical", 2))
sketch12.addConstraint(Sketcher.Constraint("Horizontal", 3))
sketch12.addConstraint(Sketcher.Constraint("DistanceX", 1, 2, 1, 1, 6.35))
sketch12.addConstraint(Sketcher.Constraint("DistanceY", 0, 2, 0, 1, 3.175))
sketch12.addConstraint(Sketcher.Constraint("DistanceX", -1, 1, 0, 2, 99.175))
sketch12.addConstraint(Sketcher.Constraint("DistanceY", -1, 1, 0, 2, 1.3125))
pad11 = body.newObject("PartDesign::Pad", "Pad010")
pad11.Profile = sketch12
pad11.Length = 3.175

sketch13 = body.newObject("Sketcher::SketchObject", "Sketch012")
sketch13.AttachmentSupport = (doc.getObject("XZ_Plane"), [""])
sketch13.MapMode = "FlatFace"
sketch13.AttachmentOffset = App.Placement(App.Vector(0, 0, -3.175), App.Rotation())
sketch13.addGeometry(Part.LineSegment(App.Vector(99.2, 10.8, 0), App.Vector(99.2, 7.7, 0)), False)
sketch13.addGeometry(Part.LineSegment(App.Vector(99.2, 7.7, 0), App.Vector(92.8, 7.7, 0)), False)
sketch13.addGeometry(Part.LineSegment(App.Vector(92.8, 7.7, 0), App.Vector(92.8, 10.8, 0)), False)
sketch13.addGeometry(Part.LineSegment(App.Vector(92.8, 10.8, 0), App.Vector(99.2, 10.8, 0)), False)
sketch13.addConstraint(Sketcher.Constraint("Coincident", 0, 2, 1, 1))
sketch13.addConstraint(Sketcher.Constraint("Coincident", 1, 2, 2, 1))
sketch13.addConstraint(Sketcher.Constraint("Coincident", 2, 2, 3, 1))
sketch13.addConstraint(Sketcher.Constraint("Coincident", 3, 2, 0, 1))
sketch13.addConstraint(Sketcher.Constraint("Vertical", 0))
sketch13.addConstraint(Sketcher.Constraint("Horizontal", 1))
sketch13.addConstraint(Sketcher.Constraint("Vertical", 2))
sketch13.addConstraint(Sketcher.Constraint("Horizontal", 3))
sketch13.addConstraint(Sketcher.Constraint("DistanceX", 1, 2, 1, 1, 6.35))
sketch13.addConstraint(Sketcher.Constraint("DistanceY", 0, 2, 0, 1, 3.175))
sketch13.addConstraint(Sketcher.Constraint("DistanceX", -1, 1, 0, 2, 99.175))
sketch13.addConstraint(Sketcher.Constraint("DistanceY", -1, 1, 0, 2, 7.6625))
pad12 = body.newObject("PartDesign::Pad", "Pad011")
pad12.Profile = sketch13
pad12.Length = 3.175

sketch14 = body.newObject("Sketcher::SketchObject", "Sketch013")
sketch14.AttachmentSupport = (doc.getObject("XZ_Plane"), [""])
sketch14.MapMode = "FlatFace"
sketch14.AttachmentOffset = App.Placement(App.Vector(0, 0, -3.175), App.Rotation())
sketch14.addGeometry(Part.LineSegment(App.Vector(-20, -62, 0), App.Vector(-20, 17, 0)), False)
sketch14.addGeometry(Part.LineSegment(App.Vector(-20, 17, 0), App.Vector(-7, 17, 0)), False)
sketch14.addGeometry(Part.LineSegment(App.Vector(-7, 17, 0), App.Vector(-7, -62, 0)), False)
sketch14.addGeometry(Part.LineSegment(App.Vector(-7, -62, 0), App.Vector(-20, -62, 0)), False)
sketch14.addConstraint(Sketcher.Constraint("Coincident", 0, 2, 1, 1))
sketch14.addConstraint(Sketcher.Constraint("Coincident", 1, 2, 2, 1))
sketch14.addConstraint(Sketcher.Constraint("Coincident", 2, 2, 3, 1))
sketch14.addConstraint(Sketcher.Constraint("Coincident", 3, 2, 0, 1))
sketch14.addConstraint(Sketcher.Constraint("Vertical", 0))
sketch14.addConstraint(Sketcher.Constraint("Horizontal", 1))
sketch14.addConstraint(Sketcher.Constraint("Vertical", 2))
sketch14.addConstraint(Sketcher.Constraint("Horizontal", 3))
sketch14.addConstraint(Sketcher.Constraint("DistanceY", 0, 1, 0, 2, 79.0))
sketch14.addConstraint(Sketcher.Constraint("DistanceY", -1, 1, 0, 2, 17.0))
sketch14.addConstraint(Sketcher.Constraint("DistanceX", 1, 1, 1, 2, 12.35))
sketch14.addConstraint(Sketcher.Constraint("DistanceX", 0, 2, -1, 1, 19.525))
pad13 = body.newObject("PartDesign::Pad", "Pad012")
pad13.Profile = sketch14
pad13.Length = 3.175

sketch15 = body.newObject("Sketcher::SketchObject", "Sketch014")
sketch15.AttachmentSupport = (doc.getObject("XZ_Plane"), [""])
sketch15.MapMode = "FlatFace"
sketch15.AttachmentOffset = App.Placement(App.Vector(0, 0, -3.175), App.Rotation())
sketch15.addGeometry(Part.LineSegment(App.Vector(99, -62, 0), App.Vector(99, 17, 0)), False)
sketch15.addGeometry(Part.LineSegment(App.Vector(99, 17, 0), App.Vector(112, 17, 0)), False)
sketch15.addGeometry(Part.LineSegment(App.Vector(112, 17, 0), App.Vector(112, -62, 0)), False)
sketch15.addGeometry(Part.LineSegment(App.Vector(112, -62, 0), App.Vector(99, -62, 0)), False)
sketch15.addConstraint(Sketcher.Constraint("Coincident", 0, 2, 1, 1))
sketch15.addConstraint(Sketcher.Constraint("Coincident", 1, 2, 2, 1))
sketch15.addConstraint(Sketcher.Constraint("Coincident", 2, 2, 3, 1))
sketch15.addConstraint(Sketcher.Constraint("Coincident", 3, 2, 0, 1))
sketch15.addConstraint(Sketcher.Constraint("Vertical", 0))
sketch15.addConstraint(Sketcher.Constraint("Horizontal", 1))
sketch15.addConstraint(Sketcher.Constraint("Vertical", 2))
sketch15.addConstraint(Sketcher.Constraint("Horizontal", 3))
sketch15.addConstraint(Sketcher.Constraint("DistanceY", 0, 1, 0, 2, 79.0))
sketch15.addConstraint(Sketcher.Constraint("DistanceY", -1, 1, 0, 2, 17.0))
sketch15.addConstraint(Sketcher.Constraint("DistanceX", 1, 1, 1, 2, 12.35))
sketch15.addConstraint(Sketcher.Constraint("DistanceX", -1, 1, 0, 2, 99.175))
pad14 = body.newObject("PartDesign::Pad", "Pad013")
pad14.Profile = sketch15
pad14.Length = 3.175

sketch16 = body.newObject("Sketcher::SketchObject", "Sketch015")
sketch16.AttachmentSupport = (doc.getObject("XZ_Plane"), [""])
sketch16.MapMode = "FlatFace"
sketch16.AttachmentOffset = App.Placement(App.Vector(0, 0, -3.175), App.Rotation())
sketch16.addGeometry(Part.Circle(App.Vector(-13.3, -54, 0), App.Vector(0, 0, 1), 1.5), False)
sketch16.addGeometry(Part.Circle(App.Vector(-13.3, 9, 0), App.Vector(0, 0, 1), 1.5), False)
sketch16.addConstraint(Sketcher.Constraint("Equal", 0, 1))
sketch16.addConstraint(Sketcher.Constraint("Vertical", 0, 3, 1, 3))
sketch16.addConstraint(Sketcher.Constraint("Diameter", 0, 3.0))
sketch16.addConstraint(Sketcher.Constraint("DistanceY", 0, 3, -1, 1, 54.0))
sketch16.addConstraint(Sketcher.Constraint("DistanceY", -1, 1, 1, 3, 9.0))
sketch16.addConstraint(Sketcher.Constraint("DistanceX", 0, 3, -1, 1, 13.35))
pocket2 = body.newObject("PartDesign::Pocket", "Pocket001")
pocket2.Profile = sketch16
pocket2.Length = 10
pocket2.Reversed = True

sketch17 = body.newObject("Sketcher::SketchObject", "Sketch016")
sketch17.AttachmentSupport = (doc.getObject("XZ_Plane"), [""])
sketch17.MapMode = "FlatFace"
sketch17.AttachmentOffset = App.Placement(App.Vector(0, 0, -3.175), App.Rotation())
sketch17.addGeometry(Part.Circle(App.Vector(105.3, -54, 0), App.Vector(0, 0, 1), 1.5), False)
sketch17.addGeometry(Part.Circle(App.Vector(105.3, 9, 0), App.Vector(0, 0, 1), 1.5), False)
sketch17.addConstraint(Sketcher.Constraint("Equal", 0, 1))
sketch17.addConstraint(Sketcher.Constraint("Vertical", 0, 3, 1, 3))
sketch17.addConstraint(Sketcher.Constraint("Diameter", 0, 3.0))
sketch17.addConstraint(Sketcher.Constraint("DistanceY", 0, 3, -1, 1, 54.0))
sketch17.addConstraint(Sketcher.Constraint("DistanceY", -1, 1, 1, 3, 9.0))
sketch17.addConstraint(Sketcher.Constraint("DistanceX", -1, 1, 0, 3, 105.35))
pocket3 = body.newObject("PartDesign::Pocket", "Pocket002")
pocket3.Profile = sketch17
pocket3.Length = 10
pocket3.Reversed = True

sketch18 = body.newObject("Sketcher::SketchObject", "Sketch017")
sketch18.AttachmentSupport = (doc.getObject("XZ_Plane"), [""])
sketch18.MapMode = "FlatFace"
sketch18.AttachmentOffset = App.Placement(App.Vector(0, 0, -3.175), App.Rotation())
sketch18.addGeometry(Part.LineSegment(App.Vector(-20, -62, 0), App.Vector(-20, 17, 0)), False)
sketch18.addGeometry(Part.LineSegment(App.Vector(-20, 17, 0), App.Vector(-7, 17, 0)), False)
sketch18.addGeometry(Part.LineSegment(App.Vector(-7, 17, 0), App.Vector(-7, -62, 0)), False)
sketch18.addGeometry(Part.LineSegment(App.Vector(-7, -62, 0), App.Vector(-20, -62, 0)), False)
sketch18.addGeometry(Part.LineSegment(App.Vector(99, -62, 0), App.Vector(99, 17, 0)), False)
sketch18.addGeometry(Part.LineSegment(App.Vector(99, 17, 0), App.Vector(112, 17, 0)), False)
sketch18.addGeometry(Part.LineSegment(App.Vector(112, 17, 0), App.Vector(112, -62, 0)), False)
sketch18.addGeometry(Part.LineSegment(App.Vector(112, -62, 0), App.Vector(99, -62, 0)), False)
sketch18.addConstraint(Sketcher.Constraint("Coincident", 0, 2, 1, 1))
sketch18.addConstraint(Sketcher.Constraint("Coincident", 1, 2, 2, 1))
sketch18.addConstraint(Sketcher.Constraint("Coincident", 2, 2, 3, 1))
sketch18.addConstraint(Sketcher.Constraint("Coincident", 3, 2, 0, 1))
sketch18.addConstraint(Sketcher.Constraint("Coincident", 4, 2, 5, 1))
sketch18.addConstraint(Sketcher.Constraint("Coincident", 5, 2, 6, 1))
sketch18.addConstraint(Sketcher.Constraint("Coincident", 6, 2, 7, 1))
sketch18.addConstraint(Sketcher.Constraint("Coincident", 7, 2, 4, 1))
sketch18.addConstraint(Sketcher.Constraint("Vertical", 0))
sketch18.addConstraint(Sketcher.Constraint("Horizontal", 1))
sketch18.addConstraint(Sketcher.Constraint("Vertical", 2))
sketch18.addConstraint(Sketcher.Constraint("Horizontal", 3))
sketch18.addConstraint(Sketcher.Constraint("Vertical", 4))
sketch18.addConstraint(Sketcher.Constraint("Horizontal", 5))
sketch18.addConstraint(Sketcher.Constraint("Vertical", 6))
sketch18.addConstraint(Sketcher.Constraint("Horizontal", 7))
sketch18.addConstraint(Sketcher.Constraint("Horizontal", 1, 2, 4, 2))
sketch18.addConstraint(Sketcher.Constraint("Horizontal", 3, 2, 6, 2))
sketch18.addConstraint(Sketcher.Constraint("Equal", 3, 5))
sketch18.addConstraint(Sketcher.Constraint("DistanceY", 0, 1, 0, 2, 79.0))
sketch18.addConstraint(Sketcher.Constraint("DistanceY", -1, 1, 0, 2, 17.0))
sketch18.addConstraint(Sketcher.Constraint("DistanceX", 1, 1, 1, 2, 12.35))
sketch18.addConstraint(Sketcher.Constraint("DistanceX", 0, 2, 4, 2, 118.7))
sketch18.addConstraint(Sketcher.Constraint("DistanceX", 0, 2, -1, 1, 19.525))
pocket4 = body.newObject("PartDesign::Pocket", "Pocket003")
pocket4.Profile = sketch18
pocket4.Length = 10
pocket4.Reversed = True

doc.recompute()
